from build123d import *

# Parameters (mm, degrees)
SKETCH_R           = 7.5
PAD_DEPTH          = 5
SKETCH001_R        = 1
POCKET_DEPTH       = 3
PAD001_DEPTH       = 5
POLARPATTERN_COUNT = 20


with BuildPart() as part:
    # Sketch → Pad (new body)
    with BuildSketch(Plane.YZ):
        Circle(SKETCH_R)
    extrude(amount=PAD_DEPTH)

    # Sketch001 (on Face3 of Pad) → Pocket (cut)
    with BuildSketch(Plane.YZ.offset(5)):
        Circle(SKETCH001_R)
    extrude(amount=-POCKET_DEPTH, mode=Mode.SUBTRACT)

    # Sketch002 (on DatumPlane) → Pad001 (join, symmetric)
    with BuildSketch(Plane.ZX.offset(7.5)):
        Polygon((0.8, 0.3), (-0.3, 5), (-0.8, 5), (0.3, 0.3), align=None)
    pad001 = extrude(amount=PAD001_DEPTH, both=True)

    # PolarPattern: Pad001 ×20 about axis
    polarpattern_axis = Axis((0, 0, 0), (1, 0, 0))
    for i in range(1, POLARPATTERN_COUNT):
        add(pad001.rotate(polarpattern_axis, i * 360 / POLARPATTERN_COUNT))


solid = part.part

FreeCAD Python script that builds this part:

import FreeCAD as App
import Part
import Sketcher

V = App.Vector


def add_polygon(sketch, points):
    """Adds a closed chain of lines whose ends are joined by coincident constraints."""
    first, n = sketch.GeometryCount, len(points)
    for a, b in zip(points, points[1:] + points[:1]):
        sketch.addGeometry(Part.LineSegment(App.Vector(*a, 0), App.Vector(*b, 0)), False)
    for i in range(n):
        sketch.addConstraint(Sketcher.Constraint("Coincident", first + i, 2, first + (i + 1) % n, 1))

doc = App.newDocument("Part")
params = doc.addObject("Spreadsheet::Sheet", "Params")
for row, (alias, value) in enumerate([
    ("sketch1_diameter", "15 mm"),
    ("pad1_length", "5 mm"),
    ("sketch2_diameter", "2 mm"),
    ("pocket1_length", "3 mm"),
    ("sketch3_height", "0.5 mm"),
    ("pad2_length", "10 mm"),
], start=1):
    params.set(f"A{row}", alias)
    params.set(f"B{row}", "=" + value)
    params.setAlias(f"B{row}", alias)

body = doc.addObject("PartDesign::Body", "Body")

sketch1 = body.newObject("Sketcher::SketchObject", "Sketch")
sketch1.AttachmentSupport = (doc.getObject("YZ_Plane"), [""])
sketch1.MapMode = "FlatFace"
sketch1.addGeometry(Part.Circle(V(0, 0, 0), V(0, 0, 1), 7.5), False)
sketch1.addConstraint([
    Sketcher.Constraint("Coincident", 0, 3, -1, 1),
    Sketcher.Constraint("Diameter", 0, 15.0),
])
sketch1.setExpression("Constraints[1]", "Params.sketch1_diameter")
pad1 = body.newObject("PartDesign::Pad", "Pad")
pad1.Profile = sketch1
pad1.setExpression("Length", "Params.pad1_length")

sketch2 = body.newObject("Sketcher::SketchObject", "Sketch001")
sketch2.AttachmentSupport = (doc.getObject("YZ_Plane"), [""])
sketch2.MapMode = "FlatFace"
sketch2.AttachmentOffset = App.Placement(V(0, 0, 5), App.Rotation())
sketch2.addGeometry(Part.Circle(V(0, 0, 0), V(0, 0, 1), 1), False)
sketch2.addConstraint([
    Sketcher.Constraint("Coincident", 0, 3, -1, 1),
    Sketcher.Constraint("Diameter", 0, 2.0),
])
sketch2.setExpression("Constraints[1]", "Params.sketch2_diameter")
pocket1 = body.newObject("PartDesign::Pocket", "Pocket")
pocket1.Profile = sketch2
pocket1.setExpression("Length", "Params.pocket1_length")

sketch3 = body.newObject("Sketcher::SketchObject", "Sketch002")
sketch3.AttachmentSupport = (doc.getObject("XZ_Plane"), [""])
sketch3.MapMode = "FlatFace"
sketch3.AttachmentOffset = App.Placement(V(0, 0, -7.5), App.Rotation())
add_polygon(sketch3, [(0.3, 0.8), (5, -0.3), (5, -0.8), (0.3, 0.3)])
sketch3.addConstraint([
    Sketcher.Constraint("Vertical", 1),
    Sketcher.Constraint("Vertical", 3),
    Sketcher.Constraint("Parallel", 0, 2),
    Sketcher.Constraint("DistanceY", 1, 2, 1, 1, 0.5),
    Sketcher.Constraint("DistanceX", -1, 1, 0, 2, 5.0),
    Sketcher.Constraint("DistanceY", 0, 2, -1, 1, 0.3),
    Sketcher.Constraint("DistanceX", -1, 1, 2, 2, 0.3),
    Sketcher.Constraint("DistanceY", -1, 1, 2, 2, 0.3),
])
sketch3.setExpression("Constraints[7]", "Params.sketch3_height")
pad2 = body.newObject("PartDesign::Pad", "Pad001")
pad2.Profile = sketch3
pad2.setExpression("Length", "Params.pad2_length")
pad2.Midplane = True
doc.recompute()

polarpattern = body.newObject("PartDesign::PolarPattern", "PolarPattern")
polarpattern.Originals = [pad2]
polarpattern.Axis = (doc.getObject("X_Axis"), [""])
polarpattern.Angle = 360
polarpattern.Occurrences = 20
body.Tip = polarpattern

doc.recompute()
